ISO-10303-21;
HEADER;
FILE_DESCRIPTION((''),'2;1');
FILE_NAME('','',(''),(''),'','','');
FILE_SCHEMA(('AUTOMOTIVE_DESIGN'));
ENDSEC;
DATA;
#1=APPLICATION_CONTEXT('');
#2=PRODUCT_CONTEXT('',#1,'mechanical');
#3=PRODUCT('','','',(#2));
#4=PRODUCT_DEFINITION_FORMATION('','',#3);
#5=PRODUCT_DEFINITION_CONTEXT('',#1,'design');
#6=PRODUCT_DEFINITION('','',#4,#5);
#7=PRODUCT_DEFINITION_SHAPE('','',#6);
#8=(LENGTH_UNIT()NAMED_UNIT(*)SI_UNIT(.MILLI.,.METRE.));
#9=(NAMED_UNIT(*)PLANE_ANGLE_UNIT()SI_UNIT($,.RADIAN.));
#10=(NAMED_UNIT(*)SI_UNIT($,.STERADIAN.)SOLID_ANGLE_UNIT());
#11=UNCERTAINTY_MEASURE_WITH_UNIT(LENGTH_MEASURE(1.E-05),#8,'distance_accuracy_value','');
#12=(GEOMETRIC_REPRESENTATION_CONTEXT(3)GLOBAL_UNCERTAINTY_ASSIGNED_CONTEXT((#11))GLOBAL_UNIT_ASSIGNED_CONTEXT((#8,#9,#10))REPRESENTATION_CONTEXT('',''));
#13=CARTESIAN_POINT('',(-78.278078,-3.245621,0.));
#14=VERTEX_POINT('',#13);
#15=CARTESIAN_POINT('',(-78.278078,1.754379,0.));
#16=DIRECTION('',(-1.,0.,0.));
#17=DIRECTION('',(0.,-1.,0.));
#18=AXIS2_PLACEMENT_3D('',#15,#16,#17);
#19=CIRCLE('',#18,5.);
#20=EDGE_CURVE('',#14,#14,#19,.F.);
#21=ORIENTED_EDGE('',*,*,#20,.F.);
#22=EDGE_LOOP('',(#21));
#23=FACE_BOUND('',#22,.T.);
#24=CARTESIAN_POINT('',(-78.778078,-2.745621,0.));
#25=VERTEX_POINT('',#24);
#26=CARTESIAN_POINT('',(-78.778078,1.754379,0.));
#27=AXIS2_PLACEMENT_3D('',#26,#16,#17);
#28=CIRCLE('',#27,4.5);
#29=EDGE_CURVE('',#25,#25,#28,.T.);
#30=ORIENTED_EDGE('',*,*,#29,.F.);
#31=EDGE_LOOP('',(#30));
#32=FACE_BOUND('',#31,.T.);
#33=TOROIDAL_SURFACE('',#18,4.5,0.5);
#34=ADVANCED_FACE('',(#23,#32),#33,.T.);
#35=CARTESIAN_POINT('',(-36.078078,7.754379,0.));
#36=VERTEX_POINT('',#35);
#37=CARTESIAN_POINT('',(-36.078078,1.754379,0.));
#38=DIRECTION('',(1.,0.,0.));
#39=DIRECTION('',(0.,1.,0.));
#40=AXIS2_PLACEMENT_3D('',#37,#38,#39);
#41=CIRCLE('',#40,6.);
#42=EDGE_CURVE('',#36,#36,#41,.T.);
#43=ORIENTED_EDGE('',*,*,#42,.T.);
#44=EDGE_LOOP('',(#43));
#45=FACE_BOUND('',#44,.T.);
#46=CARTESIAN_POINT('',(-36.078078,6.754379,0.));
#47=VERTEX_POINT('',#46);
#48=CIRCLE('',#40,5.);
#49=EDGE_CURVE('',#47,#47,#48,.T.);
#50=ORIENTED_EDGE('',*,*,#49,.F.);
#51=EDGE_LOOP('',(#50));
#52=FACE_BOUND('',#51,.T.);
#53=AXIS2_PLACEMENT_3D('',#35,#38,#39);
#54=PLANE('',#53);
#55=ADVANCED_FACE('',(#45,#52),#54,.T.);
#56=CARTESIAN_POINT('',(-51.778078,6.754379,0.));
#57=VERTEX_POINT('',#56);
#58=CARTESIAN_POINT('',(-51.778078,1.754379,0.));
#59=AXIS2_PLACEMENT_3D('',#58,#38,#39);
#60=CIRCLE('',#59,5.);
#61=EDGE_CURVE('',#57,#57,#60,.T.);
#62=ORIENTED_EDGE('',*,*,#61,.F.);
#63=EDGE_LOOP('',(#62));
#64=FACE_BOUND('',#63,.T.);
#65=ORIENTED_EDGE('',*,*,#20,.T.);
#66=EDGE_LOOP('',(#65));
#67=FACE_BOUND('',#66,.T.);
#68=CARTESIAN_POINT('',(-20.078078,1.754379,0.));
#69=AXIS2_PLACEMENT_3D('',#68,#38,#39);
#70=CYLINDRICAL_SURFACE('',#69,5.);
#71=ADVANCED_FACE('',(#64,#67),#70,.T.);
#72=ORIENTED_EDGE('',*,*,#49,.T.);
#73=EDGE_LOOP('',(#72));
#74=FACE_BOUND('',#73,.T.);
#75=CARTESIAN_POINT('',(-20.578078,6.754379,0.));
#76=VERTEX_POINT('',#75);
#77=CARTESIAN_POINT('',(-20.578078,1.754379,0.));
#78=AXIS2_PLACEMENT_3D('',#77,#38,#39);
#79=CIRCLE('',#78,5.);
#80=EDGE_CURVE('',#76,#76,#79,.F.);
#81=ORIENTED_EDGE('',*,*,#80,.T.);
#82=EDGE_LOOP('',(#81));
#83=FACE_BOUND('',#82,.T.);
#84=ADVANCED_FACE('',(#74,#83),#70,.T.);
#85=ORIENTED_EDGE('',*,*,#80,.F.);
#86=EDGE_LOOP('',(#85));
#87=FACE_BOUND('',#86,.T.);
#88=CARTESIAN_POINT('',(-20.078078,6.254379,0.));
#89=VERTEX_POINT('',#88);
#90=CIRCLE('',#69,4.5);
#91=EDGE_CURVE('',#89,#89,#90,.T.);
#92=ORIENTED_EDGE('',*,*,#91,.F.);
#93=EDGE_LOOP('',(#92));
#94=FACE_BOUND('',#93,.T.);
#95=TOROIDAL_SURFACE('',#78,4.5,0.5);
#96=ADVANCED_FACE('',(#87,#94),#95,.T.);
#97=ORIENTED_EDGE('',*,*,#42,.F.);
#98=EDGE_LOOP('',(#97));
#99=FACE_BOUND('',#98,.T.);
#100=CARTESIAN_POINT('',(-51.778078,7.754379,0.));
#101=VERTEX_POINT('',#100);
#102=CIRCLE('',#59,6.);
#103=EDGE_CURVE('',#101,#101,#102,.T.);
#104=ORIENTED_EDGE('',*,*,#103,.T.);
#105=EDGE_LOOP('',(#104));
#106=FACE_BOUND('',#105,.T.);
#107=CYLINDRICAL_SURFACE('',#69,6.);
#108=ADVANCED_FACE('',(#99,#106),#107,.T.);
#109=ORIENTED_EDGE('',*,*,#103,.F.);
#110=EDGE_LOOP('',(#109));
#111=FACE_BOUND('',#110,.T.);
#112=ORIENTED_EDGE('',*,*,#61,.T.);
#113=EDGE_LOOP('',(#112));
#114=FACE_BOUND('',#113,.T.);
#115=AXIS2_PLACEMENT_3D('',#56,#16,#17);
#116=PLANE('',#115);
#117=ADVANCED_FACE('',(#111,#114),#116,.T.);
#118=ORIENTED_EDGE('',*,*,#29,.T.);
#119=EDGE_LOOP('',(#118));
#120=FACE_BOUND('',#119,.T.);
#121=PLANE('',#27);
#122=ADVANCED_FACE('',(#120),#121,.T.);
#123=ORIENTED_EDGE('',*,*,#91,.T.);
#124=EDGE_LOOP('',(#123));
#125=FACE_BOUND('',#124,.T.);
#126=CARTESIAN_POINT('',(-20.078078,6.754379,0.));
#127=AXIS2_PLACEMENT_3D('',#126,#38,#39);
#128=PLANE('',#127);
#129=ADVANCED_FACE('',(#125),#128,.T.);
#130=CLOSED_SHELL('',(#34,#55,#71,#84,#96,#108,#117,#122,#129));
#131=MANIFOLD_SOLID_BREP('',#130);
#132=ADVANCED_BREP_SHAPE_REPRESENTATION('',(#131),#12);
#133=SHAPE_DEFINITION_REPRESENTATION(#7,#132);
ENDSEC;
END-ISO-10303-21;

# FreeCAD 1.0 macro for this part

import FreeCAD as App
import Part
import Sketcher

V = App.Vector


def edges_at(feature, points):
    """Names of the edges that pass closest to the given points."""
    edges = feature.Shape.Edges
    near = lambda p: min(range(len(edges)), key=lambda i: edges[i].distToShape(Part.Vertex(*p))[0])
    return sorted({f"Edge{near(p) + 1}" for p in points})

doc = App.newDocument("Part")
body = doc.addObject("PartDesign::Body", "Body")

sketch1 = body.newObject("Sketcher::SketchObject", "Sketch")
sketch1.AttachmentSupport = (doc.getObject("XY_Plane"), [""])
sketch1.MapMode = "FlatFace"
sketch1.addGeometry([
    Part.LineSegment(V(-78.8, 6.8, 0), V(-78.8, 1.8, 0)),
    Part.LineSegment(V(-78.8, 1.8, 0), V(-20.1, 1.8, 0)),
    Part.LineSegment(V(-20.1, 1.8, 0), V(-20.1, 6.8, 0)),
    Part.LineSegment(V(-20.1, 6.8, 0), V(-36.1, 6.8, 0)),
    Part.LineSegment(V(-36.1, 6.8, 0), V(-36.1, 7.8, 0)),
    Part.LineSegment(V(-36.1, 7.8, 0), V(-51.8, 7.8, 0)),
    Part.LineSegment(V(-51.8, 7.8, 0), V(-51.8, 6.8, 0)),
    Part.LineSegment(V(-51.8, 6.8, 0), V(-78.8, 6.8, 0)),
], False)
sketch1.addGeometry(Part.LineSegment(V(-20.1, 1.8, 0), V(-78.8, 1.8, 0)), True)
sketch1.addConstraint([
    Sketcher.Constraint("Coincident", 0, 2, 1, 1),
    Sketcher.Constraint("Coincident", 1, 2, 2, 1),
    Sketcher.Constraint("Coincident", 2, 2, 3, 1),
    Sketcher.Constraint("Coincident", 3, 2, 4, 1),
    Sketcher.Constraint("Coincident", 4, 2, 5, 1),
    Sketcher.Constraint("Coincident", 5, 2, 6, 1),
    Sketcher.Constraint("Coincident", 6, 2, 7, 1),
    Sketcher.Constraint("Coincident", 7, 2, 0, 1),
    Sketcher.Constraint("Vertical", 0),
    Sketcher.Constraint("Horizontal", 1),
    Sketcher.Constraint("Vertical", 2),
    Sketcher.Constraint("Horizontal", 3),
    Sketcher.Constraint("Vertical", 4),
    Sketcher.Constraint("Horizontal", 5),
    Sketcher.Constraint("Vertical", 6),
    Sketcher.Constraint("Horizontal", 7),
    Sketcher.Constraint("Horizontal", 8),
    Sketcher.Constraint("Coincident", 8, 1, 1, 2),
    Sketcher.Constraint("Horizontal", 3, 2, 6, 2),
    Sketcher.Constraint("Vertical", 7, 2, 8, 2),
    Sketcher.Constraint("DistanceX", 3, 2, 3, 1, 16.0),
    Sketcher.Constraint("DistanceX", 7, 2, 7, 1, 27.0),
    Sketcher.Constraint("DistanceY", 0, 2, 0, 1, 5.0),
    Sketcher.Constraint("DistanceY", 4, 1, 4, 2, 1.0),
    Sketcher.Constraint("DistanceX", 1, 1, 1, 2, 58.7),
    Sketcher.Constraint("DistanceY", -1, 1, 0, 2, 1.754379),
    Sketcher.Constraint("DistanceX", 0, 2, -1, 1, 78.778078),
])
revolution = body.newObject("PartDesign::Revolution", "Revolution")
revolution.Profile = sketch1
revolution.ReferenceAxis = (sketch1, ["Axis0"])
revolution.Angle = 360
doc.recompute()

fillet = body.newObject("PartDesign::Fillet", "Fillet")
fillet.Base = (revolution, edges_at(revolution, [(-78.778, -3.246, 0), (-20.078, -3.246, 0)]))
fillet.Radius = 0.5

doc.recompute()
